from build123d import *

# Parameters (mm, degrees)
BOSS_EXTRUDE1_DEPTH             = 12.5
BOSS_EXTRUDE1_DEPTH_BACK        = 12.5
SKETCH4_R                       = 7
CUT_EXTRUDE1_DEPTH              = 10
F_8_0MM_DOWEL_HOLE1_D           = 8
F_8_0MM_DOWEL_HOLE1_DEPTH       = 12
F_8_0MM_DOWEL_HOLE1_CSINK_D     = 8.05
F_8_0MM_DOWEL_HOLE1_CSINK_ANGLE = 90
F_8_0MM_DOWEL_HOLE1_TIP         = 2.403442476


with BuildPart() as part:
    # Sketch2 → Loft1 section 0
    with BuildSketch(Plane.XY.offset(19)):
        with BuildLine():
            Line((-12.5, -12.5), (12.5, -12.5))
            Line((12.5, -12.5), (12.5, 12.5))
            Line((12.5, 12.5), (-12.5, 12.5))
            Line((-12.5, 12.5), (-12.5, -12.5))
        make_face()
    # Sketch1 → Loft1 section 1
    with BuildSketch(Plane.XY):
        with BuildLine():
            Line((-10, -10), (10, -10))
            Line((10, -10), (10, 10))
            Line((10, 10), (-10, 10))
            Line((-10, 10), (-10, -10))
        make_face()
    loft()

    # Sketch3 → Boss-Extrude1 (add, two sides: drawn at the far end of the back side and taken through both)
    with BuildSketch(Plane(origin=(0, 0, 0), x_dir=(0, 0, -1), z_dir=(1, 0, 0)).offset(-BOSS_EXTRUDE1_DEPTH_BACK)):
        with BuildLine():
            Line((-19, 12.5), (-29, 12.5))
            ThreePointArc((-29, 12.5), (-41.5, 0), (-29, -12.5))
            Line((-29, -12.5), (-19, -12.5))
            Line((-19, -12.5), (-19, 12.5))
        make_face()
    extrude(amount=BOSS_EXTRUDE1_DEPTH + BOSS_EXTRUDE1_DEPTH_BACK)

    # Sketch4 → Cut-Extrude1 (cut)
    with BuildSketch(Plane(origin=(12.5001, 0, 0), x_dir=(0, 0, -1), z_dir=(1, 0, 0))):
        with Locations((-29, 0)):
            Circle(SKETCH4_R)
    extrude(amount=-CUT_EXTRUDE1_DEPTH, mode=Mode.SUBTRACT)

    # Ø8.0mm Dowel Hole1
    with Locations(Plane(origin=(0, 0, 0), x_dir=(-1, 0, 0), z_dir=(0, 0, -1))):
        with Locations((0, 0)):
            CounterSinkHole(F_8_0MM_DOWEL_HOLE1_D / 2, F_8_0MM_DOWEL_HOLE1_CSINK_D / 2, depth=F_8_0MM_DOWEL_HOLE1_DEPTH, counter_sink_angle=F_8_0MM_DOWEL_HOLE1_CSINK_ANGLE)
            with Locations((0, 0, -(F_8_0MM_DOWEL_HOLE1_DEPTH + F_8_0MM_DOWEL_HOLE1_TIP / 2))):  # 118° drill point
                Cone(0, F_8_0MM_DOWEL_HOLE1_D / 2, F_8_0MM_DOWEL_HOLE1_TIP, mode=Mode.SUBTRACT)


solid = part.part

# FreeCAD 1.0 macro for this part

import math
import FreeCAD as App
import Part
import Sketcher

doc = App.newDocument("Part")
params = doc.addObject("Spreadsheet::Sheet", "Params")
for row, (alias, value) in enumerate([
    ("sketch1_width", "25 mm"),
    ("sketch2_width", "20 mm"),
    ("sketch3_radius", "12.5 mm"),
    ("sketch3_height", "10 mm"),
    ("pad1_length", "12.5 mm"),
    ("pad1_length2", "12.5 mm"),
    ("sketch4_diameter", "14 mm"),
    ("pocket1_length", "10 mm"),
    ("sketch5_diameter", "8 mm"),
    ("hole_diameter", "8 mm"),
    ("hole_depth", "12 mm"),
    ("hole_csink_diameter", "8.05 mm"),
], start=1):
    params.set(f"A{row}", alias)
    params.set(f"B{row}", "=" + value)
    params.setAlias(f"B{row}", alias)

body = doc.addObject("PartDesign::Body", "Body")

# Sketch on XY plane
sketch1 = body.newObject("Sketcher::SketchObject", "Sketch")
sketch1.AttachmentSupport = (doc.getObject("XY_Plane"), [""])
sketch1.MapMode = "FlatFace"
sketch1.AttachmentOffset = App.Placement(App.Vector(0, 0, 19), App.Rotation())
sketch1.addGeometry(Part.LineSegment(App.Vector(-12, -12, 0), App.Vector(12, -12, 0)), False)
sketch1.addGeometry(Part.LineSegment(App.Vector(12, -12, 0), App.Vector(12, 12, 0)), False)
sketch1.addGeometry(Part.LineSegment(App.Vector(12, 12, 0), App.Vector(-12, 12, 0)), False)
sketch1.addGeometry(Part.LineSegment(App.Vector(-12, 12, 0), App.Vector(-12, -12, 0)), False)
sketch1.addConstraint(Sketcher.Constraint("Coincident", 0, 2, 1, 1))
sketch1.addConstraint(Sketcher.Constraint("Coincident", 1, 2, 2, 1))
sketch1.addConstraint(Sketcher.Constraint("Coincident", 2, 2, 3, 1))
sketch1.addConstraint(Sketcher.Constraint("Coincident", 3, 2, 0, 1))
sketch1.addConstraint(Sketcher.Constraint("Horizontal", 0))
sketch1.addConstraint(Sketcher.Constraint("Vertical", 1))
sketch1.addConstraint(Sketcher.Constraint("Horizontal", 2))
sketch1.addConstraint(Sketcher.Constraint("Vertical", 3))
sketch1.addConstraint(Sketcher.Constraint("Symmetric", 0, 2, 2, 2, -1, 1))
sketch1.addConstraint(Sketcher.Constraint("Equal", 2, 1))
sketch1.addConstraint(Sketcher.Constraint("DistanceX", 0, 1, 0, 2, 25.0))
sketch1.setExpression("Constraints[10]", "Params.sketch1_width")

# Sketch on XY plane
sketch2 = body.newObject("Sketcher::SketchObject", "Sketch001")
sketch2.AttachmentSupport = (doc.getObject("XY_Plane"), [""])
sketch2.MapMode = "FlatFace"
sketch2.addGeometry(Part.LineSegment(App.Vector(-10, -10, 0), App.Vector(10, -10, 0)), False)
sketch2.addGeometry(Part.LineSegment(App.Vector(10, -10, 0), App.Vector(10, 10, 0)), False)
sketch2.addGeometry(Part.LineSegment(App.Vector(10, 10, 0), App.Vector(-10, 10, 0)), False)
sketch2.addGeometry(Part.LineSegment(App.Vector(-10, 10, 0), App.Vector(-10, -10, 0)), False)
sketch2.addConstraint(Sketcher.Constraint("Coincident", 0, 2, 1, 1))
sketch2.addConstraint(Sketcher.Constraint("Coincident", 1, 2, 2, 1))
sketch2.addConstraint(Sketcher.Constraint("Coincident", 2, 2, 3, 1))
sketch2.addConstraint(Sketcher.Constraint("Coincident", 3, 2, 0, 1))
sketch2.addConstraint(Sketcher.Constraint("Horizontal", 0))
sketch2.addConstraint(Sketcher.Constraint("Vertical", 1))
sketch2.addConstraint(Sketcher.Constraint("Horizontal", 2))
sketch2.addConstraint(Sketcher.Constraint("Vertical", 3))
sketch2.addConstraint(Sketcher.Constraint("Symmetric", 0, 2, 2, 2, -1, 1))
sketch2.addConstraint(Sketcher.Constraint("Equal", 2, 1))
sketch2.addConstraint(Sketcher.Constraint("DistanceX", 0, 1, 0, 2, 20.0))
sketch2.setExpression("Constraints[10]", "Params.sketch2_width")

additiveloft = body.newObject("PartDesign::AdditiveLoft", "AdditiveLoft")
additiveloft.Profile = sketch1
additiveloft.Sections = [sketch2]

# Sketch on YZ plane
sketch3 = body.newObject("Sketcher::SketchObject", "Sketch002")
sketch3.AttachmentSupport = (doc.getObject("YZ_Plane"), [""])
sketch3.MapMode = "FlatFace"
sketch3.addGeometry(Part.LineSegment(App.Vector(12, 19, 0), App.Vector(12, 29, 0)), False)
sketch3.addGeometry(Part.ArcOfCircle(Part.Circle(App.Vector(0, 29, 0), App.Vector(0, 0, 1), 12), math.radians(0), math.radians(180)), False)
sketch3.addGeometry(Part.LineSegment(App.Vector(-12, 29, 0), App.Vector(-12, 19, 0)), False)
sketch3.addGeometry(Part.LineSegment(App.Vector(-12, 19, 0), App.Vector(12, 19, 0)), False)
sketch3.addConstraint(Sketcher.Constraint("Tangent", 0, 2, 1, 1))
sketch3.addConstraint(Sketcher.Constraint("Tangent", 1, 2, 2, 1))
sketch3.addConstraint(Sketcher.Constraint("Coincident", 2, 2, 3, 1))
sketch3.addConstraint(Sketcher.Constraint("Coincident", 3, 2, 0, 1))
sketch3.addConstraint(Sketcher.Constraint("Vertical", 0))
sketch3.addConstraint(Sketcher.Constraint("Vertical", 2))
sketch3.addConstraint(Sketcher.Constraint("Horizontal", 3))
sketch3.addConstraint(Sketcher.Constraint("PointOnObject", 1, 3, -2))
sketch3.addConstraint(Sketcher.Constraint("Radius", 1, 12.5))
sketch3.addConstraint(Sketcher.Constraint("DistanceY", 0, 1, 0, 2, 10.0))
sketch3.addConstraint(Sketcher.Constraint("DistanceY", -1, 1, 1, 3, 29.0))
sketch3.setExpression("Constraints[8]", "Params.sketch3_radius")
sketch3.setExpression("Constraints[9]", "Params.sketch3_height")
pad1 = body.newObject("PartDesign::Pad", "Pad")
pad1.Profile = sketch3
pad1.Type = "TwoLengths"
pad1.setExpression("Length", "Params.pad1_length")
pad1.setExpression("Length2", "Params.pad1_length2")

# Sketch on YZ plane
sketch4 = body.newObject("Sketcher::SketchObject", "Sketch003")
sketch4.AttachmentSupport = (doc.getObject("YZ_Plane"), [""])
sketch4.MapMode = "FlatFace"
sketch4.AttachmentOffset = App.Placement(App.Vector(0, 0, 12.5001), App.Rotation())
sketch4.addGeometry(Part.Circle(App.Vector(0, 29, 0), App.Vector(0, 0, 1), 7), False)
sketch4.addConstraint(Sketcher.Constraint("PointOnObject", 0, 3, -2))
sketch4.addConstraint(Sketcher.Constraint("Diameter", 0, 14.0))
sketch4.addConstraint(Sketcher.Constraint("DistanceY", -1, 1, 0, 3, 29.0))
sketch4.setExpression("Constraints[1]", "Params.sketch4_diameter")
pocket1 = body.newObject("PartDesign::Pocket", "Pocket")
pocket1.Profile = sketch4
pocket1.setExpression("Length", "Params.pocket1_length")

# Sketch on XY plane
sketch5 = body.newObject("Sketcher::SketchObject", "Sketch004")
sketch5.AttachmentSupport = (doc.getObject("XY_Plane"), [""])
sketch5.MapMode = "FlatFace"
sketch5.addGeometry(Part.Circle(App.Vector(0, 0, 0), App.Vector(0, 0, 1), 4), False)
sketch5.addConstraint(Sketcher.Constraint("Coincident", 0, 3, -1, 1))
sketch5.addConstraint(Sketcher.Constraint("Diameter", 0, 8.0))
sketch5.setExpression("Constraints[1]", "Params.sketch5_diameter")
doc.recompute()
hole = body.newObject("PartDesign::Hole", "Hole")
hole.Profile = sketch5
hole.ThreadType = "None"
hole.setExpression("Diameter", "Params.hole_diameter")
hole.DepthType = "Dimension"
hole.setExpression("Depth", "Params.hole_depth")
hole.DrillPoint = "Angled"
hole.DrillPointAngle = 118
hole.HoleCutType = "Countersink"
hole.setExpression("HoleCutDiameter", "Params.hole_csink_diameter")
hole.HoleCutCountersinkAngle = 90
hole.Reversed = True

doc.recompute()
